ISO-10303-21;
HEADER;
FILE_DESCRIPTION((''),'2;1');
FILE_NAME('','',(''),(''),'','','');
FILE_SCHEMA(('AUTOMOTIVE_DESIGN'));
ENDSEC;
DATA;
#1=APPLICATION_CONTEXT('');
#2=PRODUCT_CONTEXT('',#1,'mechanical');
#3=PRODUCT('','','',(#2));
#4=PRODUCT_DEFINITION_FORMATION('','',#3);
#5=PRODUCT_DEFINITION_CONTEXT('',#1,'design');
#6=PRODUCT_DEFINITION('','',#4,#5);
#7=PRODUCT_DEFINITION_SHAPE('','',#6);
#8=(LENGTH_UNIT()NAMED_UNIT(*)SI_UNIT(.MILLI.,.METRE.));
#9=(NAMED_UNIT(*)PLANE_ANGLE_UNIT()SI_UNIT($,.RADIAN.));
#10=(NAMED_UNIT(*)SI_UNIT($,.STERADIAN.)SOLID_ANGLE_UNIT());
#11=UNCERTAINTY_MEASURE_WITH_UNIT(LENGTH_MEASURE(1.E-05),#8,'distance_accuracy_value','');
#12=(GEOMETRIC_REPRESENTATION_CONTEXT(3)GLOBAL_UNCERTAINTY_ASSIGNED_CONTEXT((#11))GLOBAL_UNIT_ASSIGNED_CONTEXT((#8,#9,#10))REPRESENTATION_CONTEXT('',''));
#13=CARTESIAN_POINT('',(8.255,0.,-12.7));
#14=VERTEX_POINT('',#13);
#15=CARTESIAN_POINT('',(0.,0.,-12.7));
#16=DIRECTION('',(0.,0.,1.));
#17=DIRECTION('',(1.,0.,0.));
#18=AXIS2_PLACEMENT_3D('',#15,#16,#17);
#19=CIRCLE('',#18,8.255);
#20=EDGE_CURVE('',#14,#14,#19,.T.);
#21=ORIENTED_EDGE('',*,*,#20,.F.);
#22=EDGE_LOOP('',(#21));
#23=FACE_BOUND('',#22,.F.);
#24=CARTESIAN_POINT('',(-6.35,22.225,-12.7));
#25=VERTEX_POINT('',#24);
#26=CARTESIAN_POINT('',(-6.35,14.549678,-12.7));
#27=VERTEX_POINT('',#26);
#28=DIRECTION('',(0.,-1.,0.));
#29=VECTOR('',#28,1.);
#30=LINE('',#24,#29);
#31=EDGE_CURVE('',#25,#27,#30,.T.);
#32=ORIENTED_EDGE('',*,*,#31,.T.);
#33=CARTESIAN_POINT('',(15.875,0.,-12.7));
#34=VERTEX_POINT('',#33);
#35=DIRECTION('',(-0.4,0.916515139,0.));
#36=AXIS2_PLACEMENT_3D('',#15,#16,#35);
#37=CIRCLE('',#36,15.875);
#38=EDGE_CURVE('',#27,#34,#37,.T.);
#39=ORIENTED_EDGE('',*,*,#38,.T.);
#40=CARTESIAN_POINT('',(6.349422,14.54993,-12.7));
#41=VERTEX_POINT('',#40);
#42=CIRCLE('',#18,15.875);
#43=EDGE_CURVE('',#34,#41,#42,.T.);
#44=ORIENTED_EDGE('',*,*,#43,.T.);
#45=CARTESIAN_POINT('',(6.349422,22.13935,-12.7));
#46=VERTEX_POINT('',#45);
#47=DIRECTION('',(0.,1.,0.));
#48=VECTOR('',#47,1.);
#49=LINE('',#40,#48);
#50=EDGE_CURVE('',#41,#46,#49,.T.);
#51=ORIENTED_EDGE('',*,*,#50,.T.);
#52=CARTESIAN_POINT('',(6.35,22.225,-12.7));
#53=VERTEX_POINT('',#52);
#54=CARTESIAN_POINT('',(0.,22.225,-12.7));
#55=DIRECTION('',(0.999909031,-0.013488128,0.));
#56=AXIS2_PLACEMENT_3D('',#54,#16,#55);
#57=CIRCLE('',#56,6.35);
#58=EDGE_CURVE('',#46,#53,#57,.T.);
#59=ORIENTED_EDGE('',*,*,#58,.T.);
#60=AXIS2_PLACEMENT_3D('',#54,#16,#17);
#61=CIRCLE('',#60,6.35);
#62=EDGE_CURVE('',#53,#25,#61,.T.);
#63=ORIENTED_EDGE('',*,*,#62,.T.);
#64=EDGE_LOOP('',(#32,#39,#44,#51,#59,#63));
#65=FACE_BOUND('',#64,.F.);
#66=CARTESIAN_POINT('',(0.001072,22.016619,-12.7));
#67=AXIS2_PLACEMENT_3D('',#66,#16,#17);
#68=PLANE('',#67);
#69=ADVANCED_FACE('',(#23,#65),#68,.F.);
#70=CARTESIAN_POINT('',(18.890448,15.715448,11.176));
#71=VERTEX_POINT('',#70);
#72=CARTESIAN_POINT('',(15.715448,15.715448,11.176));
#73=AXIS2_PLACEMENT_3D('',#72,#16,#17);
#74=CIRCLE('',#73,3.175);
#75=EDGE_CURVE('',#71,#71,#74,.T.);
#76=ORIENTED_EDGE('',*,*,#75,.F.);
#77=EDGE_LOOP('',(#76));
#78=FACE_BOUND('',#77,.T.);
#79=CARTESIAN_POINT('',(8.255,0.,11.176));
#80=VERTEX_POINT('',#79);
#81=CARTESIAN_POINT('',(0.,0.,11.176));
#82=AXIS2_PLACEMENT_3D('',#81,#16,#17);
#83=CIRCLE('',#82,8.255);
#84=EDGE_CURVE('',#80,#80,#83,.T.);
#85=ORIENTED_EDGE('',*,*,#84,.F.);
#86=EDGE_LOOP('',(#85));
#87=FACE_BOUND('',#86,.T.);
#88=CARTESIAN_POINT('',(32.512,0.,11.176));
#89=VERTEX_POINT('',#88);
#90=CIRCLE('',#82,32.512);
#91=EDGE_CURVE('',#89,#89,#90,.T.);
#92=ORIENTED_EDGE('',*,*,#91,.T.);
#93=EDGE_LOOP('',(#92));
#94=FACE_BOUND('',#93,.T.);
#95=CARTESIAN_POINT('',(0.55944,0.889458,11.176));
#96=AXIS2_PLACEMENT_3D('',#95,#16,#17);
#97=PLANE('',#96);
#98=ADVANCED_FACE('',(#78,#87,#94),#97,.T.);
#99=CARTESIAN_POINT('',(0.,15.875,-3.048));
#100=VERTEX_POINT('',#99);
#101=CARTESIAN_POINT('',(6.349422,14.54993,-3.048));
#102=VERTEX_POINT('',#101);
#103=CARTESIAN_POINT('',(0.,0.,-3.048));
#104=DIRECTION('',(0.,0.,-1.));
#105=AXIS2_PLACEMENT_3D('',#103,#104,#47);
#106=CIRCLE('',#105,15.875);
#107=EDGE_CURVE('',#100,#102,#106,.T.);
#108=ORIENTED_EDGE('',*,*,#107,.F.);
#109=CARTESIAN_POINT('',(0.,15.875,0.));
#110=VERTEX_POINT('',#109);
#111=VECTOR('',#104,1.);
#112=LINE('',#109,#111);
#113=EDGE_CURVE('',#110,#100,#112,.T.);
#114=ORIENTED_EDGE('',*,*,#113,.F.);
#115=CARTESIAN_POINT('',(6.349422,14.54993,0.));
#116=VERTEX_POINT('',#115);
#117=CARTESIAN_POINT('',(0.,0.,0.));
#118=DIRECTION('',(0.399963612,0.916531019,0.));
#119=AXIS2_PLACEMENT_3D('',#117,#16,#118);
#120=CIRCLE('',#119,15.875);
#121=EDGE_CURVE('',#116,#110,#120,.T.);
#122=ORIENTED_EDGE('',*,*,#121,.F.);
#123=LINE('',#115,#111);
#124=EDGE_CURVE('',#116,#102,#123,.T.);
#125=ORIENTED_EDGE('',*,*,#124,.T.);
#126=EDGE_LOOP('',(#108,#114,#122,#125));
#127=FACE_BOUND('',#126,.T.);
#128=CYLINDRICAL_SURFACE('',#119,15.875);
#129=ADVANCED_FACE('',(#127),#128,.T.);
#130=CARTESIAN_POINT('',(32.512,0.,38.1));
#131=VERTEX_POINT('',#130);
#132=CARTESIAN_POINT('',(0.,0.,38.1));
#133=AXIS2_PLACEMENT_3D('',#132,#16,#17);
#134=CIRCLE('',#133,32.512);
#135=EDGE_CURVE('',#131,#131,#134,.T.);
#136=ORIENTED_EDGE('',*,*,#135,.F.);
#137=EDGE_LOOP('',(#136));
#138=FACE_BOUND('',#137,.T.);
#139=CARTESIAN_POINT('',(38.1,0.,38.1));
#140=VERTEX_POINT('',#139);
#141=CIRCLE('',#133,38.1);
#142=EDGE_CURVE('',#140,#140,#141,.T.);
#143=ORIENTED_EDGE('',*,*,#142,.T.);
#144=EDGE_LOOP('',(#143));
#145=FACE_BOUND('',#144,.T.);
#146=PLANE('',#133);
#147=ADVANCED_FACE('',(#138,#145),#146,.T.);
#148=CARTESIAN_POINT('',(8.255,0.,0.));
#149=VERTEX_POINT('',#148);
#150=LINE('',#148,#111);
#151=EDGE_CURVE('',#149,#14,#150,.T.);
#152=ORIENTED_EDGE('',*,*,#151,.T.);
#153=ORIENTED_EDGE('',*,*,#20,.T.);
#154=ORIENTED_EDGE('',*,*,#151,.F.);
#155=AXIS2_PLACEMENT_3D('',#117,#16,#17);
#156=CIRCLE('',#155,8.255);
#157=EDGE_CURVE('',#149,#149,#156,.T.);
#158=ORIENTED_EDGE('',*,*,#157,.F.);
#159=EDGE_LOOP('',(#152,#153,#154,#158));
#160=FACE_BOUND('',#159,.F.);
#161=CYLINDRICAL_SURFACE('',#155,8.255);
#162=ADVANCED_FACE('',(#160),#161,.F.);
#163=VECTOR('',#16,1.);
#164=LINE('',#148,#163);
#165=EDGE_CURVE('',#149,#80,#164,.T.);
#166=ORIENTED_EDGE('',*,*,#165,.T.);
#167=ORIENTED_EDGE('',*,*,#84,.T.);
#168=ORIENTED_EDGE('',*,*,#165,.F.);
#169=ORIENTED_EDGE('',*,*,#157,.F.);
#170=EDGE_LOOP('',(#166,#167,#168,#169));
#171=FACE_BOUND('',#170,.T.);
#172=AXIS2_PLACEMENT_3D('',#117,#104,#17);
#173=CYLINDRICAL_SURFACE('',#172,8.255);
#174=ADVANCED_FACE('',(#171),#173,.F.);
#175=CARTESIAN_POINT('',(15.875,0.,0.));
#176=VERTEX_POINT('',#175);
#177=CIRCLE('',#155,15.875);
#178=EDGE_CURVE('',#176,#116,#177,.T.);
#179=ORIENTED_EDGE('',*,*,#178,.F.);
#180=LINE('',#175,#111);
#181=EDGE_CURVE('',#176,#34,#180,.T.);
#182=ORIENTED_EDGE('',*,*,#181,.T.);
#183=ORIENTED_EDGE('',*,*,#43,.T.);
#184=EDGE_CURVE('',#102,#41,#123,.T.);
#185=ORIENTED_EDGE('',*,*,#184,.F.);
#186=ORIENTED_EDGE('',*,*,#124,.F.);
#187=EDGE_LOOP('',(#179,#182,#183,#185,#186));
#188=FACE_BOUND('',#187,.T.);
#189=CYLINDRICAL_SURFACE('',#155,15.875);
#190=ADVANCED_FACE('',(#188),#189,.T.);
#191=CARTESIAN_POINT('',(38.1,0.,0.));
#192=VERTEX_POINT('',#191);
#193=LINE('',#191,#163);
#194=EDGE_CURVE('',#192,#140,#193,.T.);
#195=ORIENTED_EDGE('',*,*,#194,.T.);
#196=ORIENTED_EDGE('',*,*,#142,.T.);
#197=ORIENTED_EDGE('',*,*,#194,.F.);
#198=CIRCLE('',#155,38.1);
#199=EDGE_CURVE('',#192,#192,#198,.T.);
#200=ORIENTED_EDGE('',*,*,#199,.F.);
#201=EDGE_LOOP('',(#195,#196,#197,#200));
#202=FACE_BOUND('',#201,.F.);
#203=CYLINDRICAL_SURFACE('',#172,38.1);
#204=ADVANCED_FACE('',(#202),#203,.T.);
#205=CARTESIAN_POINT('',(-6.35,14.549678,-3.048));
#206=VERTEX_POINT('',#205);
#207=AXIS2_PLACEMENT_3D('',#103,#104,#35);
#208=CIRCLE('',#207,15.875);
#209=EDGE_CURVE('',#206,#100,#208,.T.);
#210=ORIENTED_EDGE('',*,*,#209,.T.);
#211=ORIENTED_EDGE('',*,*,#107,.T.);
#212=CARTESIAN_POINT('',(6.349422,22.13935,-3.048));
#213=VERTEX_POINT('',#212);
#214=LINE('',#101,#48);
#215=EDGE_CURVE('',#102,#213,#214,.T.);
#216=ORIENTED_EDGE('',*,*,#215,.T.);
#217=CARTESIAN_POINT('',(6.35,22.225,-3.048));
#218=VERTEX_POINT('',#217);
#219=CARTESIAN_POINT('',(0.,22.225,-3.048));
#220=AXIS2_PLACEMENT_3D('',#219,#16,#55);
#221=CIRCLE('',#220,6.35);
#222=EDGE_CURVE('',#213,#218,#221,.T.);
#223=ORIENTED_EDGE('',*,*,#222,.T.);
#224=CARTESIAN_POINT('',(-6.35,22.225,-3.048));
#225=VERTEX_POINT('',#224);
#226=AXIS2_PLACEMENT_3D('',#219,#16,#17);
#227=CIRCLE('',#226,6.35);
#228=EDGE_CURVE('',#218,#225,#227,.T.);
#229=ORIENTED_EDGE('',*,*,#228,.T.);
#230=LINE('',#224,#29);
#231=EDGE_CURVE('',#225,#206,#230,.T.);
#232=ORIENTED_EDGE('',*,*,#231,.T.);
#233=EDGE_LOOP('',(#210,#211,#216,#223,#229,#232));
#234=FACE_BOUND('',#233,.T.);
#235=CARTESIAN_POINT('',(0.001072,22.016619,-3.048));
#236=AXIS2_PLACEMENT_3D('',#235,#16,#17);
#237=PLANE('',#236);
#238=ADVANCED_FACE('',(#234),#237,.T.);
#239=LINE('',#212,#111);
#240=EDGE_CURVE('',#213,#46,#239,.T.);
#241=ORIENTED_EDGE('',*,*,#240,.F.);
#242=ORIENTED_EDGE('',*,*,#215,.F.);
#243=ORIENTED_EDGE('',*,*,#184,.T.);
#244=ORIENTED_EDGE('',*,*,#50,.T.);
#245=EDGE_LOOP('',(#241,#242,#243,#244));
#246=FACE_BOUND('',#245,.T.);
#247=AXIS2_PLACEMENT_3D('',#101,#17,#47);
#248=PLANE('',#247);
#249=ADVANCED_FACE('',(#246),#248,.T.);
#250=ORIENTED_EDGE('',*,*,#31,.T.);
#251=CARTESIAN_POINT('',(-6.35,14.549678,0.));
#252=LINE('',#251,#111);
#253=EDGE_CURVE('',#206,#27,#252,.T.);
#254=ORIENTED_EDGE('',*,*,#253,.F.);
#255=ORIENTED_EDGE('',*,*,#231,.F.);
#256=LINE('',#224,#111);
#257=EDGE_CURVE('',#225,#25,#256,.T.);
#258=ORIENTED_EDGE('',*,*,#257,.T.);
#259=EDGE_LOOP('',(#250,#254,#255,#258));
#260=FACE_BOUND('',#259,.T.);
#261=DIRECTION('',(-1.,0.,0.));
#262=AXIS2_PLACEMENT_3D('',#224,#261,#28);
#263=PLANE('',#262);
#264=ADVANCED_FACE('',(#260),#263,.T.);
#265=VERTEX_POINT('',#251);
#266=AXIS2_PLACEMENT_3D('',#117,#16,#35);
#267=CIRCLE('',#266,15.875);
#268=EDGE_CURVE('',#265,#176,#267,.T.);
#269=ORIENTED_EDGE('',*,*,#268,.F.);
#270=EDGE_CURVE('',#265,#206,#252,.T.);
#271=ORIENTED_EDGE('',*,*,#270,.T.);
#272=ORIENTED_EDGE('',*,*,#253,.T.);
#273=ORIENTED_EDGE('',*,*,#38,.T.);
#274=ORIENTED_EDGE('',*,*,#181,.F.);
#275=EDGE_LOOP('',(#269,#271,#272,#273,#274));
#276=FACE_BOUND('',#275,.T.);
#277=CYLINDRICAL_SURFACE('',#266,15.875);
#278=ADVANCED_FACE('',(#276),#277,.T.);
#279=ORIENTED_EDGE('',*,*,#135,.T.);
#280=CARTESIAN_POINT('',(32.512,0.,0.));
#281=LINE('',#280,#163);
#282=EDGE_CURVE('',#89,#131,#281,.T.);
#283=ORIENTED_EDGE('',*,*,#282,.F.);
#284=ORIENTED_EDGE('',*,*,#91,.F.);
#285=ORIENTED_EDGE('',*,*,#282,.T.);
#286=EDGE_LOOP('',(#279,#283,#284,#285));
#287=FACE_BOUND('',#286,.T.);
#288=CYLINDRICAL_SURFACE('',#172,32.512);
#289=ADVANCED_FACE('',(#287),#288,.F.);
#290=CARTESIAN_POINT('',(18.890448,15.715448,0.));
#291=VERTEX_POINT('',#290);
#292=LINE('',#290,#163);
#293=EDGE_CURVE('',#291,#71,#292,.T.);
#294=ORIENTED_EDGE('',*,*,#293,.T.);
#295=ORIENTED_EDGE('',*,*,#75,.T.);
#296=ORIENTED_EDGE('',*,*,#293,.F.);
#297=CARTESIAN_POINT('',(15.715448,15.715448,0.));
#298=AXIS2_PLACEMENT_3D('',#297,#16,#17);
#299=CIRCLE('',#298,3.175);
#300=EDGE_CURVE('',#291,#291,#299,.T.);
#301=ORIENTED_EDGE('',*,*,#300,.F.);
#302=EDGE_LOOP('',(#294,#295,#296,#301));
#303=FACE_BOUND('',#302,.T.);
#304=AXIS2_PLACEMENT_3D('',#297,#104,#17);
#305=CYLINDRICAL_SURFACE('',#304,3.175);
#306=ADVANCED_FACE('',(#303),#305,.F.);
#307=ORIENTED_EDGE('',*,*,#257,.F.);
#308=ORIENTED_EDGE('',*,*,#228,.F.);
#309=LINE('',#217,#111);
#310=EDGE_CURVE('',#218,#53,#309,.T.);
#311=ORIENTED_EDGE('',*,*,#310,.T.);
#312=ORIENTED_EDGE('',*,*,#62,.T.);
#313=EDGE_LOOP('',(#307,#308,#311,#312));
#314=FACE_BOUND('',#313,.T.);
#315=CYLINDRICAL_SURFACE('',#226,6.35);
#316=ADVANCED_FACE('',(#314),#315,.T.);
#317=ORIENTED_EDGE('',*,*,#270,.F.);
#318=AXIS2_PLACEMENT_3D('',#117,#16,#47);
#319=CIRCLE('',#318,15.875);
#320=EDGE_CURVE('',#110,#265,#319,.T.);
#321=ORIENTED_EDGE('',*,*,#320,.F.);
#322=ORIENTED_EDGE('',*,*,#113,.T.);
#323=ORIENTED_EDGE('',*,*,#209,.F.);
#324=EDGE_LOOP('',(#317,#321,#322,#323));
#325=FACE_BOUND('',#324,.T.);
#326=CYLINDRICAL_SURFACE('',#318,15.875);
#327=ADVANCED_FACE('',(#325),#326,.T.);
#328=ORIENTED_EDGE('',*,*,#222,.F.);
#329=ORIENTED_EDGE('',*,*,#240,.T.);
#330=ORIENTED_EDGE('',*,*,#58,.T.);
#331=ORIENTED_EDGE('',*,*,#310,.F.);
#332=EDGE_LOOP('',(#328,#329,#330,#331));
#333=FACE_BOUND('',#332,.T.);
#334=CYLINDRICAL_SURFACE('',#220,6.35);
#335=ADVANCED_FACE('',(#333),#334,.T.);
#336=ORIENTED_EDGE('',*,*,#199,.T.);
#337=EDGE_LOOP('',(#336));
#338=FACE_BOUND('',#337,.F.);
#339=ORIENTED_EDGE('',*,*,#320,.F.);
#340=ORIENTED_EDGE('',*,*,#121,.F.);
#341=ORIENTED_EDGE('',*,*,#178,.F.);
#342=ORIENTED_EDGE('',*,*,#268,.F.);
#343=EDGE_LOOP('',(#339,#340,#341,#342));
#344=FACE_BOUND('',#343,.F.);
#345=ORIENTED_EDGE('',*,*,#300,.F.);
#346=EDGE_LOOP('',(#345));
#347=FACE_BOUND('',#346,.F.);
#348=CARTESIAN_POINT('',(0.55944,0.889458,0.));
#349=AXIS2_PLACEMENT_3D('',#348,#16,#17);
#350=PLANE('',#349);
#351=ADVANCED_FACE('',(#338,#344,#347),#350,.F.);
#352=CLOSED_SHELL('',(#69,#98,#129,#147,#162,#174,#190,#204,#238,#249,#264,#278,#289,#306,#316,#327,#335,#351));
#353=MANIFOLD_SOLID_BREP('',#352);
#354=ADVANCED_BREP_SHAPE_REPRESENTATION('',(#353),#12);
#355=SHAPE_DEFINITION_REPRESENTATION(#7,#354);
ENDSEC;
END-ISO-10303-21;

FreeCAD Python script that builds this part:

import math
import FreeCAD as App
import Part
import Sketcher
from FreeCAD import Vector
Q = App.Units.Quantity

doc = App.newDocument("Part")
body = doc.addObject("PartDesign::Body", "Body")

# Sketch on XY plane
sketch1 = doc.addObject("Sketcher::SketchObject", "Sketch")
body.addObject(sketch1)
sketch1.AttachmentSupport = (doc.XY_Plane, [""])
sketch1.MapMode = "FlatFace"
sketch1.addGeometry(Part.Circle(Vector(0, 0, 0), Vector(0, 0, 1), 38), False)
sketch1.addGeometry(Part.Circle(Vector(0, 0, 0), Vector(0, 0, 1), 33), False)
sketch1.addConstraint(Sketcher.Constraint("Coincident", 0, 3, -1, 1))
sketch1.addConstraint(Sketcher.Constraint("Coincident", 1, 3, -1, 1))
sketch1.addConstraint(Sketcher.Constraint("Diameter", 0, Q("3 in")))
sketch1.addConstraint(Sketcher.Constraint("Diameter", 1, Q("2.56 in")))
pad1 = doc.addObject("PartDesign::Pad", "Pad")
body.addObject(pad1)
pad1.Profile = sketch1
pad1.Length = Q("1.5 in")

# Sketch on XY plane
sketch2 = doc.addObject("Sketcher::SketchObject", "Sketch001")
body.addObject(sketch2)
sketch2.AttachmentSupport = (doc.XY_Plane, [""])
sketch2.MapMode = "FlatFace"
sketch2.addGeometry(Part.Circle(Vector(0, 0, 0), Vector(0, 0, 1), 32.5), False)
sketch2.addGeometry(Part.ArcOfCircle(Part.Circle(Vector(0, 0, 0), Vector(0, 0, 1), 15.9), math.radians(0), math.radians(66)), False)
sketch2.addGeometry(Part.ArcOfCircle(Part.Circle(Vector(0, 0, 0), Vector(0, 0, 1), 15.9), math.radians(114), math.radians(360)), False)
sketch2.addGeometry(Part.ArcOfCircle(Part.Circle(Vector(0, 0, 0), Vector(0, 0, 1), 15.9), math.radians(90), math.radians(114)), False)
sketch2.addGeometry(Part.ArcOfCircle(Part.Circle(Vector(0, 0, 0), Vector(0, 0, 1), 15.9), math.radians(66), math.radians(90)), False)
sketch2.addGeometry(Part.Circle(Vector(15.7, 15.7, 0), Vector(0, 0, 1), 3.2), False)
sketch2.addConstraint(Sketcher.Constraint("Tangent", 1, 1, 2, 2))
sketch2.addConstraint(Sketcher.Constraint("Tangent", 2, 1, 3, 2))
sketch2.addConstraint(Sketcher.Constraint("Tangent", 3, 1, 4, 2))
sketch2.addConstraint(Sketcher.Constraint("Tangent", 4, 1, 1, 2))
sketch2.addConstraint(Sketcher.Constraint("Coincident", 0, 3, -1, 1))
sketch2.addConstraint(Sketcher.Constraint("Coincident", 1, 3, -1, 1))
sketch2.addConstraint(Sketcher.Constraint("Equal", 1, 2))
sketch2.addConstraint(Sketcher.Constraint("PointOnObject", 1, 1, -1))
sketch2.addConstraint(Sketcher.Constraint("PointOnObject", 3, 1, -2))
sketch2.addConstraint(Sketcher.Constraint("Diameter", 0, Q("2.56 in")))
sketch2.addConstraint(Sketcher.Constraint("Diameter", 5, Q("0.25 in")))
sketch2.addConstraint(Sketcher.Constraint("Radius", 1, Q("0.625 in")))
sketch2.addConstraint(Sketcher.Constraint("DistanceX", 2, 1, -1, 1, Q("0.25 in")))
sketch2.addConstraint(Sketcher.Constraint("DistanceX", -1, 1, 5, 3, Q("15.715448 mm")))
sketch2.addConstraint(Sketcher.Constraint("DistanceY", -1, 1, 5, 3, Q("15.715448 mm")))
sketch2.addConstraint(Sketcher.Constraint("DistanceY", -1, 1, 4, 1, Q("14.54993 mm")))
pad2 = doc.addObject("PartDesign::Pad", "Pad001")
body.addObject(pad2)
pad2.Profile = sketch2
pad2.Length = Q("0.44 in")

# Sketch on XY plane
sketch3 = doc.addObject("Sketcher::SketchObject", "Sketch002")
body.addObject(sketch3)
sketch3.AttachmentSupport = (doc.XY_Plane, [""])
sketch3.MapMode = "FlatFace"
sketch3.addGeometry(Part.ArcOfCircle(Part.Circle(Vector(0, 0, 0), Vector(0, 0, 1), 16), math.radians(114), math.radians(360)), False)
sketch3.addGeometry(Part.ArcOfCircle(Part.Circle(Vector(0, 0, 0), Vector(0, 0, 1), 16), math.radians(0), math.radians(66)), False)
sketch3.addGeometry(Part.ArcOfCircle(Part.Circle(Vector(0, 0, 0), Vector(0, 0, 1), 16), math.radians(66), math.radians(90)), False)
sketch3.addGeometry(Part.ArcOfCircle(Part.Circle(Vector(0, 0, 0), Vector(0, 0, 1), 16), math.radians(90), math.radians(114)), False)
sketch3.addGeometry(Part.Circle(Vector(0, 0, 0), Vector(0, 0, 1), 8), False)
sketch3.addConstraint(Sketcher.Constraint("Tangent", 0, 2, 1, 1))
sketch3.addConstraint(Sketcher.Constraint("Tangent", 1, 2, 2, 1))
sketch3.addConstraint(Sketcher.Constraint("Tangent", 2, 2, 3, 1))
sketch3.addConstraint(Sketcher.Constraint("Tangent", 3, 2, 0, 1))
sketch3.addConstraint(Sketcher.Constraint("Coincident", 0, 3, -1, 1))
sketch3.addConstraint(Sketcher.Constraint("Coincident", 4, 3, -1, 1))
sketch3.addConstraint(Sketcher.Constraint("Equal", 0, 1))
sketch3.addConstraint(Sketcher.Constraint("PointOnObject", 0, 2, -1))
sketch3.addConstraint(Sketcher.Constraint("PointOnObject", 2, 2, -2))
sketch3.addConstraint(Sketcher.Constraint("Diameter", 4, Q("0.65 in")))
sketch3.addConstraint(Sketcher.Constraint("Radius", 0, Q("0.625 in")))
sketch3.addConstraint(Sketcher.Constraint("DistanceX", 3, 2, -1, 1, Q("0.25 in")))
sketch3.addConstraint(Sketcher.Constraint("DistanceY", -1, 1, 1, 2, Q("14.54993 mm")))
pad3 = doc.addObject("PartDesign::Pad", "Pad002")
body.addObject(pad3)
pad3.Profile = sketch3
pad3.Type = "TwoLengths"
pad3.Length = Q("0.44 in")
pad3.Length2 = Q("0.5 in")

# Sketch on XY plane
sketch4 = doc.addObject("Sketcher::SketchObject", "Sketch003")
body.addObject(sketch4)
sketch4.AttachmentSupport = (doc.XY_Plane, [""])
sketch4.MapMode = "FlatFace"
sketch4.AttachmentOffset = App.Placement(Vector(0, 0, -0.12 * 25.4), App.Rotation())
sketch4.addGeometry(Part.ArcOfCircle(Part.Circle(Vector(0, 22.22, 0), Vector(0, 0, 1), 6.35), math.radians(-0.77), math.radians(0)), False)
sketch4.addGeometry(Part.ArcOfCircle(Part.Circle(Vector(0, 22.23, 0), Vector(0, 0, 1), 6.35), math.radians(0), math.radians(180)), False)
sketch4.addGeometry(Part.LineSegment(Vector(-6.35, 22.23, 0), Vector(-6.35, 14.55, 0)), False)
sketch4.addGeometry(Part.ArcOfCircle(Part.Circle(Vector(0, 0, 0), Vector(0, 0, 1), 15.87), math.radians(90), math.radians(114)), False)
sketch4.addGeometry(Part.ArcOfCircle(Part.Circle(Vector(0, 0, 0), Vector(0, 0, 1), 15.87), math.radians(66), math.radians(90)), False)
sketch4.addGeometry(Part.LineSegment(Vector(6.35, 14.55, 0), Vector(6.35, 22.14, 0)), False)
sketch4.addConstraint(Sketcher.Constraint("Tangent", 0, 2, 1, 1))
sketch4.addConstraint(Sketcher.Constraint("Tangent", 1, 2, 2, 1))
sketch4.addConstraint(Sketcher.Constraint("Coincident", 2, 2, 3, 2))
sketch4.addConstraint(Sketcher.Constraint("Tangent", 3, 1, 4, 2))
sketch4.addConstraint(Sketcher.Constraint("Coincident", 4, 1, 5, 1))
sketch4.addConstraint(Sketcher.Constraint("Coincident", 5, 2, 0, 1))
sketch4.addConstraint(Sketcher.Constraint("Vertical", 2))
sketch4.addConstraint(Sketcher.Constraint("Vertical", 5))
sketch4.addConstraint(Sketcher.Constraint("Coincident", 3, 3, -1, 1))
sketch4.addConstraint(Sketcher.Constraint("Equal", 0, 1))
sketch4.addConstraint(Sketcher.Constraint("Equal", 3, 4))
sketch4.addConstraint(Sketcher.Constraint("Symmetric", 0, 2, 1, 2, -2))
sketch4.addConstraint(Sketcher.Constraint("PointOnObject", 3, 1, -2))
sketch4.addConstraint(Sketcher.Constraint("Radius", 0, Q("0.25 in")))
sketch4.addConstraint(Sketcher.Constraint("Radius", 3, Q("0.625 in")))
sketch4.addConstraint(Sketcher.Constraint("DistanceY", 3, 1, 0, 3, Q("0.25 in")))
sketch4.addConstraint(Sketcher.Constraint("DistanceY", 5, 1, 5, 2, Q("7.58942 mm")))
pad4 = doc.addObject("PartDesign::Pad", "Pad003")
body.addObject(pad4)
pad4.Profile = sketch4
pad4.Length = Q("0.38 in")
pad4.Reversed = True

doc.recompute()
